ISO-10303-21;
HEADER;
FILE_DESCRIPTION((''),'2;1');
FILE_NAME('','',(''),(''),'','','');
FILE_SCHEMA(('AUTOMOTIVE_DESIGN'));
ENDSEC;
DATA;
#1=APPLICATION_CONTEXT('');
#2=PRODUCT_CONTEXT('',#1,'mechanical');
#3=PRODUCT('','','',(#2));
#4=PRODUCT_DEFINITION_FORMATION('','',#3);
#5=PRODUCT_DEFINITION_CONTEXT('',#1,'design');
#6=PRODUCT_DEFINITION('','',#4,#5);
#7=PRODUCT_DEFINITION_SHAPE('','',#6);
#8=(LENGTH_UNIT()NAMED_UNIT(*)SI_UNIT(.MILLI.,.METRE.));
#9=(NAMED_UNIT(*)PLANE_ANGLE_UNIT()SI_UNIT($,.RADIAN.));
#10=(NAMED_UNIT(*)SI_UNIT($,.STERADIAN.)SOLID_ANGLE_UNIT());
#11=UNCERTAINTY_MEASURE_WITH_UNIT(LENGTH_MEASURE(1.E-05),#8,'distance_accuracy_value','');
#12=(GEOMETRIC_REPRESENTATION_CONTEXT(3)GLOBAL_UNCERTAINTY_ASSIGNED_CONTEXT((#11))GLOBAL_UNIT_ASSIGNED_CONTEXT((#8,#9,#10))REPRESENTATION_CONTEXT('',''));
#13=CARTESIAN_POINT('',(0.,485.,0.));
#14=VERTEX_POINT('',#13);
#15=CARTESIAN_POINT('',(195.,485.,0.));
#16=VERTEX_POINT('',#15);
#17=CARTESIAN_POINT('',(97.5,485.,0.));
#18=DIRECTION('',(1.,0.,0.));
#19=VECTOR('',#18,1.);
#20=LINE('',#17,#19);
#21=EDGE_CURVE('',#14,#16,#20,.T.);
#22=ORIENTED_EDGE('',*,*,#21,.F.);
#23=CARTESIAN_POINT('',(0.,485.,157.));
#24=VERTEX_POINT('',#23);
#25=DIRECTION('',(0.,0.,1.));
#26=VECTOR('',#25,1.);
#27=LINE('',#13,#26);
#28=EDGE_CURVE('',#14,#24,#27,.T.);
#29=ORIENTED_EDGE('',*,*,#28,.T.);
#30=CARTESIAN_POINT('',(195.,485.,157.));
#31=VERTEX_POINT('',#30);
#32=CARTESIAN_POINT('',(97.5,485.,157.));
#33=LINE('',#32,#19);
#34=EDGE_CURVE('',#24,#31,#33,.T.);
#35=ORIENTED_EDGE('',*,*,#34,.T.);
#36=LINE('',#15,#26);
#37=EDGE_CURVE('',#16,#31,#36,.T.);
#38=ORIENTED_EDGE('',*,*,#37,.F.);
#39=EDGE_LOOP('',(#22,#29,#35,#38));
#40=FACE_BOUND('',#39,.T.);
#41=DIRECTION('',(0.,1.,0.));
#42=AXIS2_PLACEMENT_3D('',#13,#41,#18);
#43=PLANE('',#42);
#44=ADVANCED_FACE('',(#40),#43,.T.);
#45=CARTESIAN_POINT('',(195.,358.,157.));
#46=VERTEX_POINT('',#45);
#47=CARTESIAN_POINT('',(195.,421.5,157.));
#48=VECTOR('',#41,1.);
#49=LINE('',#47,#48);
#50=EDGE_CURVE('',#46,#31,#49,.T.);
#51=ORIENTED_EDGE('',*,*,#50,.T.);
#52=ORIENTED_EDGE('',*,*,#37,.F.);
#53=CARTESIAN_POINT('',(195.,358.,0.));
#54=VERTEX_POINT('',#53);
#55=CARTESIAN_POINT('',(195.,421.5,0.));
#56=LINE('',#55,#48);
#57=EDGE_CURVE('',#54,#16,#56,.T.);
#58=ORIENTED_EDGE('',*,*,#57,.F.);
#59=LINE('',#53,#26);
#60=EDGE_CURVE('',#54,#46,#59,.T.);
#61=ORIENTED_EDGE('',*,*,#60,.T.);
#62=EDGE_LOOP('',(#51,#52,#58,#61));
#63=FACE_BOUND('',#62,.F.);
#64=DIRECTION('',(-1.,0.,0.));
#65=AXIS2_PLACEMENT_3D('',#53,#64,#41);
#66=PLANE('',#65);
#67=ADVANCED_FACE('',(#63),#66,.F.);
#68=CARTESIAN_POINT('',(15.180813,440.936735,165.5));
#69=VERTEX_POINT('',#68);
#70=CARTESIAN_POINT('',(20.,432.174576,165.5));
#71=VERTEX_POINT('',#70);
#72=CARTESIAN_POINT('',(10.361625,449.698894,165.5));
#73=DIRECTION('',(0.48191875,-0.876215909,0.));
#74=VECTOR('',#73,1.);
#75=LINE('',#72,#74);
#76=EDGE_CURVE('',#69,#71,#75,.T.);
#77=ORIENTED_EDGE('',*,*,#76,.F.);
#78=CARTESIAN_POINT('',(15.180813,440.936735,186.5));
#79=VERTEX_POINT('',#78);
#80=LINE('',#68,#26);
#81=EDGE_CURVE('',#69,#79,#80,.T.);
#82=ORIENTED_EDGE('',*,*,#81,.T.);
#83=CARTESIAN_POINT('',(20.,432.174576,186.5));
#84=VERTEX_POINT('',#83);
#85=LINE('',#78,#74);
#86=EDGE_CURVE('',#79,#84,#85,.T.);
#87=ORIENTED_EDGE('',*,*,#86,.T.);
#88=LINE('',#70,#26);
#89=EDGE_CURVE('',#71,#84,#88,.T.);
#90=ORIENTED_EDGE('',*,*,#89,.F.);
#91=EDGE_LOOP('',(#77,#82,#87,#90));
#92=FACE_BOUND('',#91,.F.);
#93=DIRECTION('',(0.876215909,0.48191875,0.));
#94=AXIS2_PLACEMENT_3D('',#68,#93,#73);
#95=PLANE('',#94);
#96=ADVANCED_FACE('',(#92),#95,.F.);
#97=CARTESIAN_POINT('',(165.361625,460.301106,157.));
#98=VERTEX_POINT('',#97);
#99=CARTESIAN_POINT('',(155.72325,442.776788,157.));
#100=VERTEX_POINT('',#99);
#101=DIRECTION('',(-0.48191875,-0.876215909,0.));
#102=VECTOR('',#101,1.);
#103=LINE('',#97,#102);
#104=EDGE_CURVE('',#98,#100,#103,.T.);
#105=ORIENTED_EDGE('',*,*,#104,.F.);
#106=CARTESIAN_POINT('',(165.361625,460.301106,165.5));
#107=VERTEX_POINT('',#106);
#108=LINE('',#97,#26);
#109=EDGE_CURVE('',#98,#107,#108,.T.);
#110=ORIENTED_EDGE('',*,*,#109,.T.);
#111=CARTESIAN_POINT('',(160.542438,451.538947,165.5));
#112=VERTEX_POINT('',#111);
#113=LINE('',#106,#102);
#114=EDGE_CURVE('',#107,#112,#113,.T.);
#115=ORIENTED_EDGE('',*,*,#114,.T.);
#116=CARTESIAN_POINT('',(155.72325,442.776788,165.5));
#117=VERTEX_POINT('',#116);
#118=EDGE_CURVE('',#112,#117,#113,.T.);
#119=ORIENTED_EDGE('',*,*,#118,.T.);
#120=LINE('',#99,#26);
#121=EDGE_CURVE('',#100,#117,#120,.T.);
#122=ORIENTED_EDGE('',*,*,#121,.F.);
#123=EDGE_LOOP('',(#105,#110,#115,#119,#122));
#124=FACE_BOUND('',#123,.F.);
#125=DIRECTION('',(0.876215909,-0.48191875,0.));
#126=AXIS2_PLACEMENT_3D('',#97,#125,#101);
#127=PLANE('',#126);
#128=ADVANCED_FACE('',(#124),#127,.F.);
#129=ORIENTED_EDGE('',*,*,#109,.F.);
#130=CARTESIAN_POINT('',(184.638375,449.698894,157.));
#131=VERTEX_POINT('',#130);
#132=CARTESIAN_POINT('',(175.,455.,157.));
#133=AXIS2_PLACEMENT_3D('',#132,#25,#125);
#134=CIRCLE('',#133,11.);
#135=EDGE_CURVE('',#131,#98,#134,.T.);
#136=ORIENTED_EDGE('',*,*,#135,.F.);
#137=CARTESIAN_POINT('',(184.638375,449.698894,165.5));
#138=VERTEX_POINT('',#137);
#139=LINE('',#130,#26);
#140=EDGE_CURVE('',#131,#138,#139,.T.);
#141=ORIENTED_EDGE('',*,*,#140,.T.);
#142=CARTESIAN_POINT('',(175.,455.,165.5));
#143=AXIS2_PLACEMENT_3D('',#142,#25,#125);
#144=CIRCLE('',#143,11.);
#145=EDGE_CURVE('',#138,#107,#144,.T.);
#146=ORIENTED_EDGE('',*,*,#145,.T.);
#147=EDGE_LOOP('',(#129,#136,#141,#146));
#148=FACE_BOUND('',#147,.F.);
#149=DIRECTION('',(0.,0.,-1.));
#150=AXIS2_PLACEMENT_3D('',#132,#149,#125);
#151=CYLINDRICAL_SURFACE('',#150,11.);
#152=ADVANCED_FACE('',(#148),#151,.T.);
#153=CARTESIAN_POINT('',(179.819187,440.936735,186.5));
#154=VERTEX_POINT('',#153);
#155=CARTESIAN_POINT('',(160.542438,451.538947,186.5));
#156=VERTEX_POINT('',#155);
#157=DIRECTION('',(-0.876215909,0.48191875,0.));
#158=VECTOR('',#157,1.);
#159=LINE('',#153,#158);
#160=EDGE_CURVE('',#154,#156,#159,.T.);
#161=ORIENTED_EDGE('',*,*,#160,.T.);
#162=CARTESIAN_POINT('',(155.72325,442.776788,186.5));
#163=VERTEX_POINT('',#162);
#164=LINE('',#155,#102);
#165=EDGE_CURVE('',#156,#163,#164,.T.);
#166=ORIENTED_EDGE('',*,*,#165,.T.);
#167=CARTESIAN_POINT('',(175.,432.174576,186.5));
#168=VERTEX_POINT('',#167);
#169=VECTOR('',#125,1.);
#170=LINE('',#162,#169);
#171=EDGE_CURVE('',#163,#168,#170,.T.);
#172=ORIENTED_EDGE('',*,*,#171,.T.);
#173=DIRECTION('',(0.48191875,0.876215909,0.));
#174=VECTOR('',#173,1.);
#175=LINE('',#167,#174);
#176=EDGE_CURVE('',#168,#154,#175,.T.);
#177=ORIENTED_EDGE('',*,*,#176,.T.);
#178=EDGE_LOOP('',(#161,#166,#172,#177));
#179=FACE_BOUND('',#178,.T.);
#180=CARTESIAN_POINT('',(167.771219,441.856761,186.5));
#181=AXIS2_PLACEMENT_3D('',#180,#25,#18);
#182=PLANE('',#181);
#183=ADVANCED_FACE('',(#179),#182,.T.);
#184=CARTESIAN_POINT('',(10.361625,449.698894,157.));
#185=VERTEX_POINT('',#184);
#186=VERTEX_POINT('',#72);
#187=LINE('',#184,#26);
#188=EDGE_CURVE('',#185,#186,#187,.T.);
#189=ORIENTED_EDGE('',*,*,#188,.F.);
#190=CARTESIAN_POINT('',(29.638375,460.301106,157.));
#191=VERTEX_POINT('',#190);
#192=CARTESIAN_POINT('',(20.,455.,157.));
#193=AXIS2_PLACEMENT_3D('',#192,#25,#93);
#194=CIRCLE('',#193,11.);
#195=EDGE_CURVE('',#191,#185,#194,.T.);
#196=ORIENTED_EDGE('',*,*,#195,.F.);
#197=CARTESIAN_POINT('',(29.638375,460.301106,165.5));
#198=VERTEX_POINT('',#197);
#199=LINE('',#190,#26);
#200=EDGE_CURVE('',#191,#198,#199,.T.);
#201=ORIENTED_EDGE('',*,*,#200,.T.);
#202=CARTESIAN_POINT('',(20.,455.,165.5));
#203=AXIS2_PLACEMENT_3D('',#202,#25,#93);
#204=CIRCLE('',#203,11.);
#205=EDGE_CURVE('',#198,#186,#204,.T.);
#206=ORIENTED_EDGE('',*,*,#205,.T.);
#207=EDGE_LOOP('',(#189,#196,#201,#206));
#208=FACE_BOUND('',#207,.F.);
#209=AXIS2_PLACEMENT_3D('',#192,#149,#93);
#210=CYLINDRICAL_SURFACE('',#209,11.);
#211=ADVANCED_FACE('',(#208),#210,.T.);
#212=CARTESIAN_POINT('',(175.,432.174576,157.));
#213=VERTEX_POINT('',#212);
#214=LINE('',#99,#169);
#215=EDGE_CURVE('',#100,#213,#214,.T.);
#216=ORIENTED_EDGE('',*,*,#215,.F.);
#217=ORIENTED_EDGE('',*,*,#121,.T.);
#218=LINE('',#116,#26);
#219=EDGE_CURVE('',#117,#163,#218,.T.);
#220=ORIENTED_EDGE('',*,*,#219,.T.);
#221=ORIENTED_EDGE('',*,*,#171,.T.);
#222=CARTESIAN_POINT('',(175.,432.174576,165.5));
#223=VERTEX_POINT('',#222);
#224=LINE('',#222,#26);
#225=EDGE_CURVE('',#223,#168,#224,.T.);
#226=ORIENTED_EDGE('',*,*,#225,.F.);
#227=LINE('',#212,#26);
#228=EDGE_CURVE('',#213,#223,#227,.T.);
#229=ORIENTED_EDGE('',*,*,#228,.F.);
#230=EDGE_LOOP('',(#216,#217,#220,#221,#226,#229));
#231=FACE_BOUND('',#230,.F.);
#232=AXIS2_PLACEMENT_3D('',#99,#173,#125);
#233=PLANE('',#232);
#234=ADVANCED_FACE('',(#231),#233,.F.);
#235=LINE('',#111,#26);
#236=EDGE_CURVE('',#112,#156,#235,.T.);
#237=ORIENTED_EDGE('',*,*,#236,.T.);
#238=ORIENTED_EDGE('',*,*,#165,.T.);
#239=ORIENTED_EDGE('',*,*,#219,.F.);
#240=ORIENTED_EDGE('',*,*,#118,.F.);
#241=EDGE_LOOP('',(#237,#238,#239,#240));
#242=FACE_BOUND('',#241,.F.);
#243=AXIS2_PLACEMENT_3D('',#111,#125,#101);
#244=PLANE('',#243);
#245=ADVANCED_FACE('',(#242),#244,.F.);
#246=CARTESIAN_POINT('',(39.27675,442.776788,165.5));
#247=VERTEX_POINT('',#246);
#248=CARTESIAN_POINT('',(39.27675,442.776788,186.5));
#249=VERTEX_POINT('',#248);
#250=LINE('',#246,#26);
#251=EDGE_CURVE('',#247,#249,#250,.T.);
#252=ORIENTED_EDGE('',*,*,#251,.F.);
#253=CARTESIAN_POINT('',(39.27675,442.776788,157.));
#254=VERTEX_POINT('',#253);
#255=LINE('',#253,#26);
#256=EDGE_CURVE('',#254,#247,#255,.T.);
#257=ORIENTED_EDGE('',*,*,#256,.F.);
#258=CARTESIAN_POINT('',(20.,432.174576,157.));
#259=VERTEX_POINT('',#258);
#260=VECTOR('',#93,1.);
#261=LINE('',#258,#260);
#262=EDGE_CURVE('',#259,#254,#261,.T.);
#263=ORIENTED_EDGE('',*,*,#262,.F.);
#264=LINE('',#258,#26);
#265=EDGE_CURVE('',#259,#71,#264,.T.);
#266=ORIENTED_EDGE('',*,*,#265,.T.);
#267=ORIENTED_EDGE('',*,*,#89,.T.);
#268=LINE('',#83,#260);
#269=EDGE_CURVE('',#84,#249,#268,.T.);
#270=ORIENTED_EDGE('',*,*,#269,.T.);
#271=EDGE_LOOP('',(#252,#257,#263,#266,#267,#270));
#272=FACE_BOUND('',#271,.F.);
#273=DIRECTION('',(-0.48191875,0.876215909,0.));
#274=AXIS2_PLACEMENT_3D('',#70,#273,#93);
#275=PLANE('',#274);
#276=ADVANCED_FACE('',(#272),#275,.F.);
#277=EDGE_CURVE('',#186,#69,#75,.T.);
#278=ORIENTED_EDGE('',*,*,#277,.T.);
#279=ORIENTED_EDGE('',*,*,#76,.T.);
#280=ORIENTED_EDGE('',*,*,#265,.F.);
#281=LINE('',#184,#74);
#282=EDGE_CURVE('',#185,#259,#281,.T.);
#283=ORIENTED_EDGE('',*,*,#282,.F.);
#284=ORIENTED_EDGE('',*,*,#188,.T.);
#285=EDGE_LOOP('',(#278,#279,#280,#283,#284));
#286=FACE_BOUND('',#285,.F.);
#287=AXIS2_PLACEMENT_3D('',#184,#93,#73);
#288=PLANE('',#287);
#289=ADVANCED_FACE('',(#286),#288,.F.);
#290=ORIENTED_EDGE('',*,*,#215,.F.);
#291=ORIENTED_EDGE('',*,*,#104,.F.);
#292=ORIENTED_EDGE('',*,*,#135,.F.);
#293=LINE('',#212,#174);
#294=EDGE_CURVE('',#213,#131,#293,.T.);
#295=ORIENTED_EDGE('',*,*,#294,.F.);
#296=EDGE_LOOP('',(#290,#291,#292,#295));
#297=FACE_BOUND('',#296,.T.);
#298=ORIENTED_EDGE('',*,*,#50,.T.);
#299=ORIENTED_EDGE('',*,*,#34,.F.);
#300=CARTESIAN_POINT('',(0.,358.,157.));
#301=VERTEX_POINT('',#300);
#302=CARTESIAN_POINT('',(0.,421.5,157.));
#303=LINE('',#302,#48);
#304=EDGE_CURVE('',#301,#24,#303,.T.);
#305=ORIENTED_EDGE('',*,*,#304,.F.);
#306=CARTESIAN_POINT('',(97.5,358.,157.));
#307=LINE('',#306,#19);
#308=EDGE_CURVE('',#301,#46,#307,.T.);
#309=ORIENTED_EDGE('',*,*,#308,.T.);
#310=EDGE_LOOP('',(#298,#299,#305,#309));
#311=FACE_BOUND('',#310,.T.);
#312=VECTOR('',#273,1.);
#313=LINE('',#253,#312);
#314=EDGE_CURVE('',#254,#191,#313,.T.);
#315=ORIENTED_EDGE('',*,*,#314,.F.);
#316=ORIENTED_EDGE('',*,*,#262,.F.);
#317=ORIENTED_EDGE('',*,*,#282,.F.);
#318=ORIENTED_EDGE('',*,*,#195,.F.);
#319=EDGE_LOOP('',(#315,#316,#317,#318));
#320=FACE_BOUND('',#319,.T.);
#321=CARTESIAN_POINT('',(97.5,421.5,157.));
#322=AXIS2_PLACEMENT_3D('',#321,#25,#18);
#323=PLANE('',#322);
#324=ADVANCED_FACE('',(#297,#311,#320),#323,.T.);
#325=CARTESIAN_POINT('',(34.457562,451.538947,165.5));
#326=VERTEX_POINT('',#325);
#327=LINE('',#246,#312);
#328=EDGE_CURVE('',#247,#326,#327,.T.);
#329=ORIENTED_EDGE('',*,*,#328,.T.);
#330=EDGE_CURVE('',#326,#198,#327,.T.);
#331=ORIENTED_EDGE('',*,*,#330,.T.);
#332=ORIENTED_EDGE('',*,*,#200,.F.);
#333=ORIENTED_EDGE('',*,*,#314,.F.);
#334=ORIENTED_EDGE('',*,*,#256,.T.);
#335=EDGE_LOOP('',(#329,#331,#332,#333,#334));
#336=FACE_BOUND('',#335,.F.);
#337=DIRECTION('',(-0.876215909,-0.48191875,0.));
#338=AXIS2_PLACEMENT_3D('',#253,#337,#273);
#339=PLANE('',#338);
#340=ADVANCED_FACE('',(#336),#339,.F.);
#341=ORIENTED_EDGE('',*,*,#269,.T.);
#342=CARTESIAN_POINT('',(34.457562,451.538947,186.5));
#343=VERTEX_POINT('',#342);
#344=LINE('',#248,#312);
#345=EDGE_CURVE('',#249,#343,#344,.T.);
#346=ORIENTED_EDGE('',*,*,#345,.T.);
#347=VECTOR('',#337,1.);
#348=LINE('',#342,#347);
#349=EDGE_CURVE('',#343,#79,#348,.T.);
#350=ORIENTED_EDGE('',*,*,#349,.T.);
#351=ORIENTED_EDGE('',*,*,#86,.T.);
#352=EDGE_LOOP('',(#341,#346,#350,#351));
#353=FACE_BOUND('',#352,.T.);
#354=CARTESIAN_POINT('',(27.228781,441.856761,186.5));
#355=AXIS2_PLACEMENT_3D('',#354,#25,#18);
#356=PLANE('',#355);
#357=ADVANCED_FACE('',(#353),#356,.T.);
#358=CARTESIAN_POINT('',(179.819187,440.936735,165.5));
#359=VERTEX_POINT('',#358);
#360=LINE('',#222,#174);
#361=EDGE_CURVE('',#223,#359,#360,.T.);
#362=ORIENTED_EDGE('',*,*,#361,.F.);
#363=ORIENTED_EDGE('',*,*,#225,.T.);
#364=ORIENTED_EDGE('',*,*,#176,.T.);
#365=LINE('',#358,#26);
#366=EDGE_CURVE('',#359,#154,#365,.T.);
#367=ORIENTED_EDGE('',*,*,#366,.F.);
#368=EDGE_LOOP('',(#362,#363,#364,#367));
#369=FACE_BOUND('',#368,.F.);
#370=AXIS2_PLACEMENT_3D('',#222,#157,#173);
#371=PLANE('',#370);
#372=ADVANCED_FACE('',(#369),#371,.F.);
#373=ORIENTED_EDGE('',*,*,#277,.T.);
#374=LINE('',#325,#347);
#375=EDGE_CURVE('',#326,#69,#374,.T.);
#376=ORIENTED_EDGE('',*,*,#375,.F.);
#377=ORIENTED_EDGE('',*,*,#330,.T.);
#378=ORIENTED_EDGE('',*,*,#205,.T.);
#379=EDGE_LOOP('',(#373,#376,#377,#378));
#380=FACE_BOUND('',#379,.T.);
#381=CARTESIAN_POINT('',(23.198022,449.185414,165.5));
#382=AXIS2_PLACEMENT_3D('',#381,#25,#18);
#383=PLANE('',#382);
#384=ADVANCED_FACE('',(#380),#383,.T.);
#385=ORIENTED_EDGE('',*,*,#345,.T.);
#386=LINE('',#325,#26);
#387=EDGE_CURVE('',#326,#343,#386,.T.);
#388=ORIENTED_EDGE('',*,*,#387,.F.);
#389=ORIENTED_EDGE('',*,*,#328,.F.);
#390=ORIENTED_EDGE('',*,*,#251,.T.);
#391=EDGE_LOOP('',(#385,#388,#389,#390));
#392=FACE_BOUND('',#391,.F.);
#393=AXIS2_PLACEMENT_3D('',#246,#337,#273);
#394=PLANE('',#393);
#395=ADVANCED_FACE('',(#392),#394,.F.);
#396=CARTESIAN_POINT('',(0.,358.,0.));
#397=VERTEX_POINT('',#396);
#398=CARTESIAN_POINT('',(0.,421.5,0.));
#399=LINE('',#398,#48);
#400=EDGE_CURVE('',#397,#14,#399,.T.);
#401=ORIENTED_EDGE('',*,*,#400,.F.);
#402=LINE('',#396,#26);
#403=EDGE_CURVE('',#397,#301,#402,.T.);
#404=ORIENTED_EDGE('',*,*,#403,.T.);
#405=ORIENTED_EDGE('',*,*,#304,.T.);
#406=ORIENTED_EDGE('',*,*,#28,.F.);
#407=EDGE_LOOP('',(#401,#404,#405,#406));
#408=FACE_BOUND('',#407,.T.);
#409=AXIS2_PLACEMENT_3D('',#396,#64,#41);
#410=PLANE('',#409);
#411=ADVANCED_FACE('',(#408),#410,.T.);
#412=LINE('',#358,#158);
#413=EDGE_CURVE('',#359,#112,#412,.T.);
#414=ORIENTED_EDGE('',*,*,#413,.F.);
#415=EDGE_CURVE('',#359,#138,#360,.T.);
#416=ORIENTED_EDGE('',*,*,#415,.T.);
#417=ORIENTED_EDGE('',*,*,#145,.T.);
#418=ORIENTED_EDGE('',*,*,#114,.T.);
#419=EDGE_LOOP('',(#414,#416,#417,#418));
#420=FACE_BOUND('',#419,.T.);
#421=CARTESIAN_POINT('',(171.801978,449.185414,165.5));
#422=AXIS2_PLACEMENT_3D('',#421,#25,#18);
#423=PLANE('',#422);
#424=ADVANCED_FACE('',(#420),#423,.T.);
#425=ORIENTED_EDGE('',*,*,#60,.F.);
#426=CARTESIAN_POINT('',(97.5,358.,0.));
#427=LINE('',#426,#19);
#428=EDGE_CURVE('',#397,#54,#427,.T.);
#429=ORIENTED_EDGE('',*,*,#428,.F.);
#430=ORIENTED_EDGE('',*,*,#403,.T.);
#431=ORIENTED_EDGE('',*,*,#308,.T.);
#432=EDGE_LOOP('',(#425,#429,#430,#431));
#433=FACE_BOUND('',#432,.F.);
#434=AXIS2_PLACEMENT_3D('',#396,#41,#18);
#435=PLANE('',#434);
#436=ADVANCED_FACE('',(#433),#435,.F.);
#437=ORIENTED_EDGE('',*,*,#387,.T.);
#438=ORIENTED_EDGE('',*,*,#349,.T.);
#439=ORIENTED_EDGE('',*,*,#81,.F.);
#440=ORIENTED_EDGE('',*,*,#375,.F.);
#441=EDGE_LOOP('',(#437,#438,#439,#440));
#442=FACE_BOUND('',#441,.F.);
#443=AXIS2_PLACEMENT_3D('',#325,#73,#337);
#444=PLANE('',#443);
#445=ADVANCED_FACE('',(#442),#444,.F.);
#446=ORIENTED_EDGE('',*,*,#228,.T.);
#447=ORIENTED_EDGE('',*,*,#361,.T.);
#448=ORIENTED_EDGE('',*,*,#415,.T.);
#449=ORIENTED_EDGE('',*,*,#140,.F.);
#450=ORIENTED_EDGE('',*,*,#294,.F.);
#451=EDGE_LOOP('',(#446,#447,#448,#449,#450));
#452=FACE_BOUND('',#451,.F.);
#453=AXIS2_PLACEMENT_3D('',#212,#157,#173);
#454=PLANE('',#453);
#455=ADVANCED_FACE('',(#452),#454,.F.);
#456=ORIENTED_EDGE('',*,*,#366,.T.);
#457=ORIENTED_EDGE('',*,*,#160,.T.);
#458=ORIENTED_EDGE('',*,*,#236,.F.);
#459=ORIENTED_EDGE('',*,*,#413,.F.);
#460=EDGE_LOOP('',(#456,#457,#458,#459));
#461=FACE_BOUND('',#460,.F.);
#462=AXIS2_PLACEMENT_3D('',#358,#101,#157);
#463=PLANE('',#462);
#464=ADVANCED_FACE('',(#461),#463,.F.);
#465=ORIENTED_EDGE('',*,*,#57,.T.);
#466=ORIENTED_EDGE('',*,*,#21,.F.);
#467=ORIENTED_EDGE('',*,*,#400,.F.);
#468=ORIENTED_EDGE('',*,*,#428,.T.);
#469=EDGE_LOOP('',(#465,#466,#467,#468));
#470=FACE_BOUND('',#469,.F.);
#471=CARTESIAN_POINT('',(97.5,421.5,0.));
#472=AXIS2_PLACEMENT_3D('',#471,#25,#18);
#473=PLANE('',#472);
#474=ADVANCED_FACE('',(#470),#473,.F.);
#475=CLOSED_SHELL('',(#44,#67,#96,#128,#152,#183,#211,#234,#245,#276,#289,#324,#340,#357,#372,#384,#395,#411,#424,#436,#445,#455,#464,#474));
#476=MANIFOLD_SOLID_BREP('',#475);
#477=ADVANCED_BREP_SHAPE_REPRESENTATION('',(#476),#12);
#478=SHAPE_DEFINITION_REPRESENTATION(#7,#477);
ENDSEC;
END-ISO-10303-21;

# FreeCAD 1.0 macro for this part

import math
import FreeCAD as App
import Part
import Sketcher
from FreeCAD import Vector
Q = App.Units.Quantity


def add_polygon(sketch, points):
    """Adds a closed chain of lines whose ends are joined by coincident constraints."""
    first, n = sketch.GeometryCount, len(points)
    for a, b in zip(points, points[1:] + points[:1]):
        sketch.addGeometry(Part.LineSegment(App.Vector(*a, 0), App.Vector(*b, 0)), False)
    for i in range(n):
        sketch.addConstraint(Sketcher.Constraint("Coincident", first + i, 2, first + (i + 1) % n, 1))

doc = App.newDocument("Part")
body = doc.addObject("PartDesign::Body", "Body")

# Sketch on XY plane
sketch1 = body.newObject("Sketcher::SketchObject", "Sketch")
sketch1.AttachmentSupport = (doc.getObject("XY_Plane"), [""])
sketch1.MapMode = "FlatFace"
add_polygon(sketch1, [(0, 0), (0, -127), (195, -127), (195, 0)])  # lines 0-3
sketch1.addConstraint([
    Sketcher.Constraint("Vertical", 0),
    Sketcher.Constraint("Horizontal", 1),
    Sketcher.Constraint("Vertical", 2),
    Sketcher.Constraint("Horizontal", 3),
    Sketcher.Constraint("Coincident", 3, 2, -1, 1),
    Sketcher.Constraint("DistanceX", 1, 1, 1, 2, Q("195 mm")),
    Sketcher.Constraint("DistanceY", 0, 2, 0, 1, Q("127 mm")),
])
pad1 = body.newObject("PartDesign::Pad", "Pad")
pad1.Profile = sketch1
pad1.Length = 157

# Sketch on XY plane
sketch2 = body.newObject("Sketcher::SketchObject", "Sketch001")
sketch2.AttachmentSupport = (doc.getObject("XY_Plane"), [""])
sketch2.MapMode = "FlatFace"
sketch2.AttachmentOffset = App.Placement(Vector(0, 0, 157), App.Rotation())
sketch2.addGeometry([
    Part.ArcOfCircle(Part.Circle(Vector(20, -30, 0), Vector(0, 0, 1), 11), math.radians(29), math.radians(209)),  # 0
    Part.LineSegment(Vector(10, -35, 0), Vector(20, -53, 0)),  # 1
    Part.LineSegment(Vector(20, -53, 0), Vector(39, -42, 0)),  # 2
    Part.LineSegment(Vector(39, -42, 0), Vector(30, -25, 0)),  # 3
    Part.LineSegment(Vector(175, -53, 0), Vector(185, -35, 0)),  # 4
    Part.ArcOfCircle(Part.Circle(Vector(175, -30, 0), Vector(0, 0, 1), 11), math.radians(-29), math.radians(151)),  # 5
    Part.LineSegment(Vector(165, -25, 0), Vector(156, -42, 0)),  # 6
    Part.LineSegment(Vector(156, -42, 0), Vector(175, -53, 0)),  # 7
], False)
sketch2.addConstraint([
    Sketcher.Constraint("Tangent", 0, 2, 1, 1),
    Sketcher.Constraint("Coincident", 1, 2, 2, 1),
    Sketcher.Constraint("Coincident", 2, 2, 3, 1),
    Sketcher.Constraint("Tangent", 3, 2, 0, 1),
    Sketcher.Constraint("Tangent", 4, 2, 5, 1),
    Sketcher.Constraint("Tangent", 5, 2, 6, 1),
    Sketcher.Constraint("Coincident", 6, 2, 7, 1),
    Sketcher.Constraint("Coincident", 7, 2, 4, 1),
    Sketcher.Constraint("Equal", 0, 5),
    Sketcher.Constraint("Perpendicular", 1, 2),
    Sketcher.Constraint("Perpendicular", 2, 3),
    Sketcher.Constraint("Parallel", 4, 6),
    Sketcher.Constraint("Perpendicular", 6, 7),
    Sketcher.Constraint("Horizontal", 0, 3, 5, 3),
    Sketcher.Constraint("Horizontal", 0, 2, 4, 2),
    Sketcher.Constraint("Horizontal", 2, 2, 6, 2),
    Sketcher.Constraint("Vertical", 0, 3, 1, 2),
    Sketcher.Constraint("Radius", 0, Q("11 mm")),
    Sketcher.Constraint("Distance", 1, Q("20 mm")),
    Sketcher.Constraint("DistanceX", -1, 1, 0, 3, Q("20 mm")),
    Sketcher.Constraint("DistanceY", 0, 3, -1, 1, Q("30 mm")),
    Sketcher.Constraint("DistanceX", -1, 1, 5, 3, Q("175 mm")),
])
pad2 = body.newObject("PartDesign::Pad", "Pad001")
pad2.Profile = sketch2
pad2.Length = 8.5

# Sketch on XY plane
sketch3 = body.newObject("Sketcher::SketchObject", "Sketch002")
sketch3.AttachmentSupport = (doc.getObject("XY_Plane"), [""])
sketch3.MapMode = "FlatFace"
sketch3.AttachmentOffset = App.Placement(Vector(0, 0, 165.5), App.Rotation())
add_polygon(sketch3, [(20, -53), (39, -42), (34, -33), (15, -44)])  # lines 0-3
add_polygon(sketch3, [(156, -42), (175, -53), (180, -44), (161, -33)])  # lines 4-7
sketch3.addConstraint([
    Sketcher.Constraint("Perpendicular", 0, 1),
    Sketcher.Constraint("Perpendicular", 1, 2),
    Sketcher.Constraint("Perpendicular", 2, 3),
    Sketcher.Constraint("Perpendicular", 4, 5),
    Sketcher.Constraint("Perpendicular", 5, 6),
    Sketcher.Constraint("Perpendicular", 6, 7),
    Sketcher.Constraint("Horizontal", 3, 2, 4, 2),
    Sketcher.Constraint("Horizontal", 2, 2, 5, 2),
    Sketcher.Constraint("Horizontal", 1, 2, 6, 2),
    Sketcher.Constraint("Equal", 2, 4),
    Sketcher.Constraint("Distance", 0, Q("22 mm")),
    Sketcher.Constraint("Distance", 1, Q("10 mm")),
    Sketcher.Constraint("DistanceX", -1, 1, 3, 2, Q("20 mm")),
    Sketcher.Constraint("DistanceX", -1, 1, 4, 2, Q("175 mm")),
    Sketcher.Constraint("DistanceX", 0, 2, 7, 2, Q("116.4465 mm")),
    Sketcher.Constraint("DistanceY", 0, 2, -1, 1, Q("42.223212 mm")),
])
pad3 = body.newObject("PartDesign::Pad", "Pad002")
pad3.Profile = sketch3
pad3.Length = 21
body2 = doc.addObject("PartDesign::Body", "Body001")
doc.recompute()

body.Placement = App.Placement(Vector(0, 485, 0), App.Rotation(Vector(0, 0, 1), 0))
boolean = body2.newObject("PartDesign::Boolean", "Boolean")
boolean.Type = "Fuse"
boolean.addObjects([body])

doc.recompute()
